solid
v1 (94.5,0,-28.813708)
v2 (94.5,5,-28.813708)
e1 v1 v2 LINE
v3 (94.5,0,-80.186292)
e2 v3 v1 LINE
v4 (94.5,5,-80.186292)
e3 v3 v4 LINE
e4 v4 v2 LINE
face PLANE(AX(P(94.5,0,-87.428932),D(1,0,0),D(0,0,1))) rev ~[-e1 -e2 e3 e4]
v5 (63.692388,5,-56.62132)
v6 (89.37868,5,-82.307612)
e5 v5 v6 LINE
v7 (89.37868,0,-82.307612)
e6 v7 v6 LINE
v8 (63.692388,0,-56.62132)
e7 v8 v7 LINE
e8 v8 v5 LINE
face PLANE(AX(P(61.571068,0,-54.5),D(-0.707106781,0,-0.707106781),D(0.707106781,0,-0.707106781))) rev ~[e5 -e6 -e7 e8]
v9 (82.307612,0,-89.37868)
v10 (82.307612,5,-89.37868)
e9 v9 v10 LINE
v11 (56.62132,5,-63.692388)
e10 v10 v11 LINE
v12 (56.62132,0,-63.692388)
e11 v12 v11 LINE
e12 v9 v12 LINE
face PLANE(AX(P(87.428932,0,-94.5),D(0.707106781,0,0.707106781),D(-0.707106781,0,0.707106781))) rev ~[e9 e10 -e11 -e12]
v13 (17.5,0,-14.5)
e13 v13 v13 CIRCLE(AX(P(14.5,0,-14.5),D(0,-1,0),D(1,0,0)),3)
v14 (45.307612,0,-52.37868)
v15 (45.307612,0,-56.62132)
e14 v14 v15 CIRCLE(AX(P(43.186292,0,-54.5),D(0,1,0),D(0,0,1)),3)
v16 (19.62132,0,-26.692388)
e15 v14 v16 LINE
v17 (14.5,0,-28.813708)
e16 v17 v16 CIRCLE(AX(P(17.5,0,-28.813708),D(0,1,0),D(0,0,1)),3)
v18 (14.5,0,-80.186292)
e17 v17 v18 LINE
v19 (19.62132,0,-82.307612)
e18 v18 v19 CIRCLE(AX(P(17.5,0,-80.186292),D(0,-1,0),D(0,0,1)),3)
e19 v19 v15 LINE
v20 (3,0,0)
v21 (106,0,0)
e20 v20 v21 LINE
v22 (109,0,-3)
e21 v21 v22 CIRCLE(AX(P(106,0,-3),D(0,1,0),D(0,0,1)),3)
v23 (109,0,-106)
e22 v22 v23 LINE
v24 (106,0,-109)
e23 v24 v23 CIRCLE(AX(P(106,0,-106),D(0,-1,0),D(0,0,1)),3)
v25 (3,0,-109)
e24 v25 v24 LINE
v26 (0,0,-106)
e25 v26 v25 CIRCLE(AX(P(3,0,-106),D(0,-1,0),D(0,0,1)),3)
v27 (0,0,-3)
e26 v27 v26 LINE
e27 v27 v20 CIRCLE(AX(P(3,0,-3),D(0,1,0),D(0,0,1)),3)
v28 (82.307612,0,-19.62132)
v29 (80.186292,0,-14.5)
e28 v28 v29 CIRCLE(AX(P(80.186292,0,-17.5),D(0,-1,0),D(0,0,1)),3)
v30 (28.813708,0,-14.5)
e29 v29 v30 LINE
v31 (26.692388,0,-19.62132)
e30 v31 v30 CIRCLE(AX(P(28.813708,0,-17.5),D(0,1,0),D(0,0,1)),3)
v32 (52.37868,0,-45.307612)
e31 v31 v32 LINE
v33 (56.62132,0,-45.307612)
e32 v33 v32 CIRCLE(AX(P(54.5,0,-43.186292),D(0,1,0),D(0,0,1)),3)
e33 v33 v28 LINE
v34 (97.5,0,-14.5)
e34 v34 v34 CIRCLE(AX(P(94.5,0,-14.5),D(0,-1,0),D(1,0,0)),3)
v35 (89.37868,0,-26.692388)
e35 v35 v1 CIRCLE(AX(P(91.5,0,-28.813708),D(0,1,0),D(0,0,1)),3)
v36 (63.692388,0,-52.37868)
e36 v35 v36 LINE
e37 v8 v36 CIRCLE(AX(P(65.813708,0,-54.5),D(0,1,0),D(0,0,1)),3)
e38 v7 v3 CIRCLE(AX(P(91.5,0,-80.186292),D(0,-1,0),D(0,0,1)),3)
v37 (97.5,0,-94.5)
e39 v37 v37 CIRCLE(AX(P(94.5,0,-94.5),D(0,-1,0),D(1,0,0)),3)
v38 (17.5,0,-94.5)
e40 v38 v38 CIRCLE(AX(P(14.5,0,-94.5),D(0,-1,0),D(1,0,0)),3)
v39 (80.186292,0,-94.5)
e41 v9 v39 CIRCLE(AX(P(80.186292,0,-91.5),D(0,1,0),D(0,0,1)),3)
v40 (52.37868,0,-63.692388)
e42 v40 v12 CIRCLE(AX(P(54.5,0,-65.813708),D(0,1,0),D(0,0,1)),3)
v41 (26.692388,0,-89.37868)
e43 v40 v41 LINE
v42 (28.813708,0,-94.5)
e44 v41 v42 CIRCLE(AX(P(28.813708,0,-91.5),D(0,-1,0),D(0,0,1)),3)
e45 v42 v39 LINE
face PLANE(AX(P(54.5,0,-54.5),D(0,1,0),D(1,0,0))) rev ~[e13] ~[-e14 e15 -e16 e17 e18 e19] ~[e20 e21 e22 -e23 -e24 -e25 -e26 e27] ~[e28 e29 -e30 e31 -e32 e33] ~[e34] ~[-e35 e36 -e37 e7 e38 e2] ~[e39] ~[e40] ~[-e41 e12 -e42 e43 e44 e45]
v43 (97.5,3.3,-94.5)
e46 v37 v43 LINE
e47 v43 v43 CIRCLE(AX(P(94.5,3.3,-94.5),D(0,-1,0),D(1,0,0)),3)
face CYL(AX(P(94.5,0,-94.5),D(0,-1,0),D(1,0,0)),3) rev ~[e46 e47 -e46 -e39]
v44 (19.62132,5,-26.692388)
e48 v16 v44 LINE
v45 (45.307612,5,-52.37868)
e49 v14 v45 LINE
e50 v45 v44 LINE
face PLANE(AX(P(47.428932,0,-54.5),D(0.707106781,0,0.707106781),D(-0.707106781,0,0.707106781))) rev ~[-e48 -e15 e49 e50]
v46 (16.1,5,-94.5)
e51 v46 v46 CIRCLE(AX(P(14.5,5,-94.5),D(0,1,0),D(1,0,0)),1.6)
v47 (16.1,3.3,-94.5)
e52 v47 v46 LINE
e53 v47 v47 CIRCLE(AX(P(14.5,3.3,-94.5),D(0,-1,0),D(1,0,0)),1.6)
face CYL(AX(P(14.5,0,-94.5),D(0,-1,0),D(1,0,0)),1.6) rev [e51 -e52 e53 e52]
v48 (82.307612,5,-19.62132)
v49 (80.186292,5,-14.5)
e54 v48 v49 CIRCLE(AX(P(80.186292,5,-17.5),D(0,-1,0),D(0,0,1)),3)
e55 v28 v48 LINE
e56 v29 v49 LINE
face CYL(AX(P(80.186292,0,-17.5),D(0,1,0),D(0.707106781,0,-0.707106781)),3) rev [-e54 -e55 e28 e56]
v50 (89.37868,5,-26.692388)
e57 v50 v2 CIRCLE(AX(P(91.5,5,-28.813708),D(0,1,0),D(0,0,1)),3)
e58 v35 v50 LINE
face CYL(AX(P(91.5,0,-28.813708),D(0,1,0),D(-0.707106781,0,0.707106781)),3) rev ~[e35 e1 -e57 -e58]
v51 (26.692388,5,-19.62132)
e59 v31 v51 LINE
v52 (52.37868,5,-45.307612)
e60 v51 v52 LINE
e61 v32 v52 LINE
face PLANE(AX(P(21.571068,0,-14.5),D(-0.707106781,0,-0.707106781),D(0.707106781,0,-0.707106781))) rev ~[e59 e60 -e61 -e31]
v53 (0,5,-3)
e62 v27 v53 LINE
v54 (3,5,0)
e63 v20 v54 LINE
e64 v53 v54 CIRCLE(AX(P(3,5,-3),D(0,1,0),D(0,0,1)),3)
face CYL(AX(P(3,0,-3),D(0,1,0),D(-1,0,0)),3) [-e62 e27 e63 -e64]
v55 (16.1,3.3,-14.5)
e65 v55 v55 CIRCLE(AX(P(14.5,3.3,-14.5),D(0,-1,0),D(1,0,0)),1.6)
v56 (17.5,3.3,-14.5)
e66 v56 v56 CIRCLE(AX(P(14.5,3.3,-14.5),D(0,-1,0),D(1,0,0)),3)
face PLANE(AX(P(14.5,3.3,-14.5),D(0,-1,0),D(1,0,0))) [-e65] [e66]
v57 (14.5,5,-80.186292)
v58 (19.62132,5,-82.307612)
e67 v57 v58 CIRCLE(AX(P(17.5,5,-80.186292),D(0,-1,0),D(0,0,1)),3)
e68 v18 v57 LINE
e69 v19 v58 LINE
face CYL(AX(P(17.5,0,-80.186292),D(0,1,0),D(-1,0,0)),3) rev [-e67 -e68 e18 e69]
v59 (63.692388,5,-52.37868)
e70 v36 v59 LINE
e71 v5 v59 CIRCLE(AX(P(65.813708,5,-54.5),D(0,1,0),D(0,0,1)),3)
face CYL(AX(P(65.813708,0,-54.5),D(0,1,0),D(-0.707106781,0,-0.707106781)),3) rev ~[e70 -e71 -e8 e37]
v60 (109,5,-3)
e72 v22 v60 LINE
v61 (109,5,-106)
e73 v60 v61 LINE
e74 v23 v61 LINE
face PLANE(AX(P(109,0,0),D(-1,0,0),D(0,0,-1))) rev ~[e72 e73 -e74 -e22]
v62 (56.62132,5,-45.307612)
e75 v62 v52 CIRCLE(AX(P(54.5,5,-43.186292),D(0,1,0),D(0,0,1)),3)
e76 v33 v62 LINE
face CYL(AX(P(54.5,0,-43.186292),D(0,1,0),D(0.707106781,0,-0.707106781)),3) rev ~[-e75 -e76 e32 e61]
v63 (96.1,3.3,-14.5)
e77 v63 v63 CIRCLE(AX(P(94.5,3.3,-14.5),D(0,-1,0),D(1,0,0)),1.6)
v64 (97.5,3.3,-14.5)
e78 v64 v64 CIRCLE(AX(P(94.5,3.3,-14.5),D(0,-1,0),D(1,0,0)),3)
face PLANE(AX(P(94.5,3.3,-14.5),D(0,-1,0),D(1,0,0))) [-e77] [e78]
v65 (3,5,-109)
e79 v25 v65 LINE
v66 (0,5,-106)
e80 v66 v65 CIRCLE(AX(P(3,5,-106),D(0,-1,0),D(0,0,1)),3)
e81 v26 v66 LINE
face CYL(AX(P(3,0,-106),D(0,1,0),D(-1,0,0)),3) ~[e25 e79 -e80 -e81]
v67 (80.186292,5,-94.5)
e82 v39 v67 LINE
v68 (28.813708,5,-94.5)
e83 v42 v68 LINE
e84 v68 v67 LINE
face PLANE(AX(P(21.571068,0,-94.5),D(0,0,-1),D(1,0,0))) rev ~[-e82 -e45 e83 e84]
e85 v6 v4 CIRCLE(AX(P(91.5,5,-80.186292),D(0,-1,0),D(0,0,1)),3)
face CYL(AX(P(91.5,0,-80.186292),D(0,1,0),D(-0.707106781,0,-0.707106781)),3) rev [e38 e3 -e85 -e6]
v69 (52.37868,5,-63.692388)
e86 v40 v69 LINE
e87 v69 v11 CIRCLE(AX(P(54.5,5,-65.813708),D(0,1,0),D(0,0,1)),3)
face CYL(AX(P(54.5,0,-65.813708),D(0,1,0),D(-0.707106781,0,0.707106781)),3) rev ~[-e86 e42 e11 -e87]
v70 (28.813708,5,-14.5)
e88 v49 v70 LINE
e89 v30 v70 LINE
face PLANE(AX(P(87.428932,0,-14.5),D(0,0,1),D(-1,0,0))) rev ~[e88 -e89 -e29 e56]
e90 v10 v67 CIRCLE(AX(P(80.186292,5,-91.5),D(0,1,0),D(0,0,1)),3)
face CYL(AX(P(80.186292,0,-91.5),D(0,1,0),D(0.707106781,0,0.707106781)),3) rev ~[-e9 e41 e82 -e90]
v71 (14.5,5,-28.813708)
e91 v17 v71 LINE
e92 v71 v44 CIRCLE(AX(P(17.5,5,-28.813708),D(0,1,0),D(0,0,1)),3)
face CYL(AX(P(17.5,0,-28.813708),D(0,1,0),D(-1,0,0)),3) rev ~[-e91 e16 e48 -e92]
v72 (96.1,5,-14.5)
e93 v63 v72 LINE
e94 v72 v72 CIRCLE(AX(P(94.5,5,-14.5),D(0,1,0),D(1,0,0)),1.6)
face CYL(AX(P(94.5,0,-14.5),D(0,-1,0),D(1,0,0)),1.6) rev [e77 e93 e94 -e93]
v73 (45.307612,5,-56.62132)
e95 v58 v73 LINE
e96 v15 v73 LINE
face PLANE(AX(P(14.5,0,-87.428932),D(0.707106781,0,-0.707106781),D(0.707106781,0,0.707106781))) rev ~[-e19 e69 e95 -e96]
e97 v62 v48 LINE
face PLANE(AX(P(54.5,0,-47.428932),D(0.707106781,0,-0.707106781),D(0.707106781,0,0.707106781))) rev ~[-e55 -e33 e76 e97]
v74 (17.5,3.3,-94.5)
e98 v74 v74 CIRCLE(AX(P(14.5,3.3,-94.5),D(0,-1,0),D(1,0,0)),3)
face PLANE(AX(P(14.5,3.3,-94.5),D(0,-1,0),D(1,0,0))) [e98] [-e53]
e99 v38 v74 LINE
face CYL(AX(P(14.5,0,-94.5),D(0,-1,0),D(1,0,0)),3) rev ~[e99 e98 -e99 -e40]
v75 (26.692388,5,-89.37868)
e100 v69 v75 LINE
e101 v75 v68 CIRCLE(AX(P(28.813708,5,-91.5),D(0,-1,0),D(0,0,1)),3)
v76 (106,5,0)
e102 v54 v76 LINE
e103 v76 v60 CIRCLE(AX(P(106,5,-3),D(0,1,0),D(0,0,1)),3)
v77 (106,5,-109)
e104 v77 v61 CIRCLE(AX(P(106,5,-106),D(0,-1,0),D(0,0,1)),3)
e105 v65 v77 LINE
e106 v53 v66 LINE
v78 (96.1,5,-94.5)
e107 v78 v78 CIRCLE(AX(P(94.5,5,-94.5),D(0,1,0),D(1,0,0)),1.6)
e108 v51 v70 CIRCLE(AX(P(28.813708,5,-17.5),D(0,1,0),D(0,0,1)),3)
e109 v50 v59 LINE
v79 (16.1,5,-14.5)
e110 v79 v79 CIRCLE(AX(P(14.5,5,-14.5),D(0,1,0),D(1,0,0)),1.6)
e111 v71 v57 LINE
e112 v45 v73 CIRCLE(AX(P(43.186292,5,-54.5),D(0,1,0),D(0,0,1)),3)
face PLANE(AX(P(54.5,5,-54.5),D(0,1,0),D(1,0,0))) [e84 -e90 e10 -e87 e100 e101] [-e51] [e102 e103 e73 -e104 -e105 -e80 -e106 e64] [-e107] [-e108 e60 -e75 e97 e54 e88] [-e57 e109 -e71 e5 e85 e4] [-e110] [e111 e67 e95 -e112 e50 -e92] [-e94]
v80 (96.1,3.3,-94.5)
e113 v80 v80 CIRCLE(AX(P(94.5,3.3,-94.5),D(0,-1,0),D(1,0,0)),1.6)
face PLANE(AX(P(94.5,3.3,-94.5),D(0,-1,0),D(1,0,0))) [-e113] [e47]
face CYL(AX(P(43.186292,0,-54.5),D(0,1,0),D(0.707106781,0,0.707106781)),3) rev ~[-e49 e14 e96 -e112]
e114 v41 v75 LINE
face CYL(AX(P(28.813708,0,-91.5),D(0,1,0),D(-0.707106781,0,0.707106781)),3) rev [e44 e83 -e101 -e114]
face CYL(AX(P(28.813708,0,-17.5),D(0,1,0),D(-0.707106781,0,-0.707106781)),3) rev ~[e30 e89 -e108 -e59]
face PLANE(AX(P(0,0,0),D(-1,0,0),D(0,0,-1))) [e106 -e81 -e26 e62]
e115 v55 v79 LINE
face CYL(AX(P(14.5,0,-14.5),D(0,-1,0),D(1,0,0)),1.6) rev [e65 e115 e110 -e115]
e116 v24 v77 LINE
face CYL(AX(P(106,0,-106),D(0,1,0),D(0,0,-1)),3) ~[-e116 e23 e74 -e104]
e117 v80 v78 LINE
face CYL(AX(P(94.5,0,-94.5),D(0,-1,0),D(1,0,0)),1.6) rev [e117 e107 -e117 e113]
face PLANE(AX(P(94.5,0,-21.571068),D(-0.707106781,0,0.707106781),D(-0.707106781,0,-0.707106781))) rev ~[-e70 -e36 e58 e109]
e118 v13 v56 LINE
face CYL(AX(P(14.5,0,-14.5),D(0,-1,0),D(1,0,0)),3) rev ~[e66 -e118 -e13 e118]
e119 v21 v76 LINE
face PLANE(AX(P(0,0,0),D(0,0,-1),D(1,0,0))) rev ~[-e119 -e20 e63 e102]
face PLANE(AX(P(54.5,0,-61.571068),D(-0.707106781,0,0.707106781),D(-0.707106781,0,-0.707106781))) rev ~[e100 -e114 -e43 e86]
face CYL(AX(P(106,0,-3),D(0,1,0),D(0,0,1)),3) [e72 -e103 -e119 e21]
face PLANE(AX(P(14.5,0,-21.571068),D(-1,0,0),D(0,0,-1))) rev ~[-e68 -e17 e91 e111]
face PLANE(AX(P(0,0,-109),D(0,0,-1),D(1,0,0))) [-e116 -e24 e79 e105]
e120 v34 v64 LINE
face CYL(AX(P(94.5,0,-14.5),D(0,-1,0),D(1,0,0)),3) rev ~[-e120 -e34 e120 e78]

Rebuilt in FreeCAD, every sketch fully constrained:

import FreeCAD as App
import Part
import Sketcher
from FreeCAD import Vector


def edges_at(feature, points):
    """Names of the edges that pass closest to the given points."""
    edges = feature.Shape.Edges
    near = lambda p: min(range(len(edges)), key=lambda i: edges[i].distToShape(Part.Vertex(*p))[0])
    return sorted({f"Edge{near(p) + 1}" for p in points})

doc = App.newDocument("Part")
body = doc.addObject("PartDesign::Body", "Body")

# Sketch on XZ plane
sketch1 = body.newObject("Sketcher::SketchObject", "Sketch")
sketch1.AttachmentSupport = (doc.getObject("XZ_Plane"), [""])
sketch1.MapMode = "FlatFace"
sketch1.addGeometry([
    Part.LineSegment(Vector(0, -109, 0), Vector(0, 0, 0)),  # 0
    Part.LineSegment(Vector(0, 0, 0), Vector(109, 0, 0)),  # 1
    Part.LineSegment(Vector(109, 0, 0), Vector(109, -109, 0)),  # 2
    Part.LineSegment(Vector(109, -109, 0), Vector(0, -109, 0)),  # 3
    Part.Circle(Vector(14.5, -14.5, 0), Vector(0, 0, 1), 1.6),  # 4
    Part.LineSegment(Vector(54.5, -47.4, 0), Vector(87.4, -14.5, 0)),  # 5
    Part.LineSegment(Vector(87.4, -14.5, 0), Vector(21.6, -14.5, 0)),  # 6
    Part.LineSegment(Vector(21.6, -14.5, 0), Vector(54.5, -47.4, 0)),  # 7
    Part.Circle(Vector(94.5, -14.5, 0), Vector(0, 0, 1), 1.6),  # 8
    Part.LineSegment(Vector(14.5, -21.6, 0), Vector(14.5, -87.4, 0)),  # 9
    Part.LineSegment(Vector(14.5, -87.4, 0), Vector(47.4, -54.5, 0)),  # 10
    Part.LineSegment(Vector(47.4, -54.5, 0), Vector(14.5, -21.6, 0)),  # 11
    Part.Circle(Vector(14.5, -94.5, 0), Vector(0, 0, 1), 1.6),  # 12
    Part.LineSegment(Vector(61.6, -54.5, 0), Vector(94.5, -87.4, 0)),  # 13
    Part.LineSegment(Vector(94.5, -87.4, 0), Vector(94.5, -21.6, 0)),  # 14
    Part.LineSegment(Vector(94.5, -21.6, 0), Vector(61.6, -54.5, 0)),  # 15
    Part.LineSegment(Vector(54.5, -61.6, 0), Vector(21.6, -94.5, 0)),  # 16
    Part.LineSegment(Vector(21.6, -94.5, 0), Vector(87.4, -94.5, 0)),  # 17
    Part.LineSegment(Vector(87.4, -94.5, 0), Vector(54.5, -61.6, 0)),  # 18
    Part.Circle(Vector(94.5, -94.5, 0), Vector(0, 0, 1), 1.6),  # 19
], False)
sketch1.addConstraint([
    Sketcher.Constraint("Coincident", 0, 2, 1, 1),
    Sketcher.Constraint("Coincident", 1, 2, 2, 1),
    Sketcher.Constraint("Coincident", 2, 2, 3, 1),
    Sketcher.Constraint("Coincident", 3, 2, 0, 1),
    Sketcher.Constraint("Coincident", 5, 2, 6, 1),
    Sketcher.Constraint("Coincident", 6, 2, 7, 1),
    Sketcher.Constraint("Coincident", 7, 2, 5, 1),
    Sketcher.Constraint("Coincident", 9, 2, 10, 1),
    Sketcher.Constraint("Coincident", 10, 2, 11, 1),
    Sketcher.Constraint("Coincident", 11, 2, 9, 1),
    Sketcher.Constraint("Coincident", 13, 2, 14, 1),
    Sketcher.Constraint("Coincident", 14, 2, 15, 1),
    Sketcher.Constraint("Coincident", 15, 2, 13, 1),
    Sketcher.Constraint("Coincident", 16, 2, 17, 1),
    Sketcher.Constraint("Coincident", 17, 2, 18, 1),
    Sketcher.Constraint("Coincident", 18, 2, 16, 1),
    Sketcher.Constraint("Vertical", 0),
    Sketcher.Constraint("Horizontal", 1),
    Sketcher.Constraint("Vertical", 2),
    Sketcher.Constraint("Horizontal", 3),
    Sketcher.Constraint("Horizontal", 6),
    Sketcher.Constraint("Vertical", 9),
    Sketcher.Constraint("Vertical", 14),
    Sketcher.Constraint("Horizontal", 17),
    Sketcher.Constraint("Coincident", 0, 2, -1, 1),
    Sketcher.Constraint("Equal", 4, 8),
    Sketcher.Constraint("Equal", 8, 12),
    Sketcher.Constraint("Equal", 12, 19),
    Sketcher.Constraint("Perpendicular", 5, 7),
    Sketcher.Constraint("Perpendicular", 7, 10),
    Sketcher.Constraint("Perpendicular", 10, 11),
    Sketcher.Constraint("Parallel", 11, 13),
    Sketcher.Constraint("Perpendicular", 13, 15),
    Sketcher.Constraint("Parallel", 15, 16),
    Sketcher.Constraint("Perpendicular", 16, 18),
    Sketcher.Constraint("Horizontal", 4, 3, 8, 3),
    Sketcher.Constraint("Horizontal", 12, 3, 19, 3),
    Sketcher.Constraint("Horizontal", 8, 3, 5, 2),
    Sketcher.Constraint("Horizontal", 9, 2, 13, 2),
    Sketcher.Constraint("Horizontal", 11, 2, 14, 2),
    Sketcher.Constraint("Horizontal", 10, 2, 15, 2),
    Sketcher.Constraint("Horizontal", 19, 3, 16, 2),
    Sketcher.Constraint("Vertical", 4, 3, 12, 3),
    Sketcher.Constraint("Vertical", 8, 3, 19, 3),
    Sketcher.Constraint("Vertical", 12, 3, 9, 2),
    Sketcher.Constraint("Vertical", 19, 3, 13, 2),
    Sketcher.Constraint("Vertical", 6, 2, 16, 2),
    Sketcher.Constraint("Vertical", 5, 2, 17, 2),
    Sketcher.Constraint("Equal", 3, 0),
    Sketcher.Constraint("Equal", 17, 9),
    Sketcher.Constraint("Diameter", 4, 3.2),
    Sketcher.Constraint("DistanceX", 1, 1, 1, 2, 109.0),
    Sketcher.Constraint("DistanceX", 4, 3, 8, 3, 80.0),
    Sketcher.Constraint("DistanceY", 12, 3, 4, 3, 80.0),
    Sketcher.Constraint("DistanceX", 4, 3, 7, 2, 40.0),
    Sketcher.Constraint("DistanceY", 9, 2, 7, 2, 40.0),
    Sketcher.Constraint("DistanceX", -1, 1, 4, 3, 14.5),
    Sketcher.Constraint("DistanceY", 4, 3, -1, 1, 14.5),
    Sketcher.Constraint("DistanceX", 6, 2, 6, 1, 65.857864),
])
pad1 = body.newObject("PartDesign::Pad", "Pad")
pad1.Profile = sketch1
pad1.Length = 5
pad1.Reversed = True
doc.recompute()

fillet = body.newObject("PartDesign::Fillet", "Fillet")
fillet.Base = (pad1, edges_at(pad1, [
    (14.5, 2.5, -87.429),
    (14.5, 2.5, -21.571),
    (47.429, 2.5, -54.5),
    (54.5, 2.5, -61.571),
    (87.429, 2.5, -94.5),
    (21.571, 2.5, -94.5),
    (61.571, 2.5, -54.5),
    (94.5, 2.5, -21.571),
    (94.5, 2.5, -87.429),
    (54.5, 2.5, -47.429),
    (21.571, 2.5, -14.5),
    (87.429, 2.5, -14.5),
    (0, 2.5, -109),
    (109, 2.5, -109),
    (109, 2.5, 0),
    (0, 2.5, 0),
]))
fillet.Radius = 3

# Sketch on XZ plane
sketch2 = body.newObject("Sketcher::SketchObject", "Sketch001")
sketch2.AttachmentSupport = (doc.getObject("XZ_Plane"), [""])
sketch2.MapMode = "FlatFace"
sketch2.addGeometry([
    Part.Circle(Vector(14.5, -14.5, 0), Vector(0, 0, 1), 3),
    Part.Circle(Vector(94.5, -14.5, 0), Vector(0, 0, 1), 3),
    Part.Circle(Vector(94.5, -94.5, 0), Vector(0, 0, 1), 3),
    Part.Circle(Vector(14.5, -94.5, 0), Vector(0, 0, 1), 3),
], False)
sketch2.addConstraint([
    Sketcher.Constraint("Equal", 0, 1),
    Sketcher.Constraint("Equal", 1, 2),
    Sketcher.Constraint("Equal", 2, 3),
    Sketcher.Constraint("Horizontal", 0, 3, 1, 3),
    Sketcher.Constraint("Horizontal", 2, 3, 3, 3),
    Sketcher.Constraint("Vertical", 1, 3, 2, 3),
    Sketcher.Constraint("Vertical", 0, 3, 3, 3),
    Sketcher.Constraint("Diameter", 0, 6.0),
    Sketcher.Constraint("DistanceX", 0, 3, 1, 3, 80.0),
    Sketcher.Constraint("DistanceY", 2, 3, 1, 3, 80.0),
    Sketcher.Constraint("DistanceX", -1, 1, 0, 3, 14.5),
    Sketcher.Constraint("DistanceY", 0, 3, -1, 1, 14.5),
])
pocket1 = body.newObject("PartDesign::Pocket", "Pocket")
pocket1.Profile = sketch2
pocket1.Length = 3.3

doc.recompute()
